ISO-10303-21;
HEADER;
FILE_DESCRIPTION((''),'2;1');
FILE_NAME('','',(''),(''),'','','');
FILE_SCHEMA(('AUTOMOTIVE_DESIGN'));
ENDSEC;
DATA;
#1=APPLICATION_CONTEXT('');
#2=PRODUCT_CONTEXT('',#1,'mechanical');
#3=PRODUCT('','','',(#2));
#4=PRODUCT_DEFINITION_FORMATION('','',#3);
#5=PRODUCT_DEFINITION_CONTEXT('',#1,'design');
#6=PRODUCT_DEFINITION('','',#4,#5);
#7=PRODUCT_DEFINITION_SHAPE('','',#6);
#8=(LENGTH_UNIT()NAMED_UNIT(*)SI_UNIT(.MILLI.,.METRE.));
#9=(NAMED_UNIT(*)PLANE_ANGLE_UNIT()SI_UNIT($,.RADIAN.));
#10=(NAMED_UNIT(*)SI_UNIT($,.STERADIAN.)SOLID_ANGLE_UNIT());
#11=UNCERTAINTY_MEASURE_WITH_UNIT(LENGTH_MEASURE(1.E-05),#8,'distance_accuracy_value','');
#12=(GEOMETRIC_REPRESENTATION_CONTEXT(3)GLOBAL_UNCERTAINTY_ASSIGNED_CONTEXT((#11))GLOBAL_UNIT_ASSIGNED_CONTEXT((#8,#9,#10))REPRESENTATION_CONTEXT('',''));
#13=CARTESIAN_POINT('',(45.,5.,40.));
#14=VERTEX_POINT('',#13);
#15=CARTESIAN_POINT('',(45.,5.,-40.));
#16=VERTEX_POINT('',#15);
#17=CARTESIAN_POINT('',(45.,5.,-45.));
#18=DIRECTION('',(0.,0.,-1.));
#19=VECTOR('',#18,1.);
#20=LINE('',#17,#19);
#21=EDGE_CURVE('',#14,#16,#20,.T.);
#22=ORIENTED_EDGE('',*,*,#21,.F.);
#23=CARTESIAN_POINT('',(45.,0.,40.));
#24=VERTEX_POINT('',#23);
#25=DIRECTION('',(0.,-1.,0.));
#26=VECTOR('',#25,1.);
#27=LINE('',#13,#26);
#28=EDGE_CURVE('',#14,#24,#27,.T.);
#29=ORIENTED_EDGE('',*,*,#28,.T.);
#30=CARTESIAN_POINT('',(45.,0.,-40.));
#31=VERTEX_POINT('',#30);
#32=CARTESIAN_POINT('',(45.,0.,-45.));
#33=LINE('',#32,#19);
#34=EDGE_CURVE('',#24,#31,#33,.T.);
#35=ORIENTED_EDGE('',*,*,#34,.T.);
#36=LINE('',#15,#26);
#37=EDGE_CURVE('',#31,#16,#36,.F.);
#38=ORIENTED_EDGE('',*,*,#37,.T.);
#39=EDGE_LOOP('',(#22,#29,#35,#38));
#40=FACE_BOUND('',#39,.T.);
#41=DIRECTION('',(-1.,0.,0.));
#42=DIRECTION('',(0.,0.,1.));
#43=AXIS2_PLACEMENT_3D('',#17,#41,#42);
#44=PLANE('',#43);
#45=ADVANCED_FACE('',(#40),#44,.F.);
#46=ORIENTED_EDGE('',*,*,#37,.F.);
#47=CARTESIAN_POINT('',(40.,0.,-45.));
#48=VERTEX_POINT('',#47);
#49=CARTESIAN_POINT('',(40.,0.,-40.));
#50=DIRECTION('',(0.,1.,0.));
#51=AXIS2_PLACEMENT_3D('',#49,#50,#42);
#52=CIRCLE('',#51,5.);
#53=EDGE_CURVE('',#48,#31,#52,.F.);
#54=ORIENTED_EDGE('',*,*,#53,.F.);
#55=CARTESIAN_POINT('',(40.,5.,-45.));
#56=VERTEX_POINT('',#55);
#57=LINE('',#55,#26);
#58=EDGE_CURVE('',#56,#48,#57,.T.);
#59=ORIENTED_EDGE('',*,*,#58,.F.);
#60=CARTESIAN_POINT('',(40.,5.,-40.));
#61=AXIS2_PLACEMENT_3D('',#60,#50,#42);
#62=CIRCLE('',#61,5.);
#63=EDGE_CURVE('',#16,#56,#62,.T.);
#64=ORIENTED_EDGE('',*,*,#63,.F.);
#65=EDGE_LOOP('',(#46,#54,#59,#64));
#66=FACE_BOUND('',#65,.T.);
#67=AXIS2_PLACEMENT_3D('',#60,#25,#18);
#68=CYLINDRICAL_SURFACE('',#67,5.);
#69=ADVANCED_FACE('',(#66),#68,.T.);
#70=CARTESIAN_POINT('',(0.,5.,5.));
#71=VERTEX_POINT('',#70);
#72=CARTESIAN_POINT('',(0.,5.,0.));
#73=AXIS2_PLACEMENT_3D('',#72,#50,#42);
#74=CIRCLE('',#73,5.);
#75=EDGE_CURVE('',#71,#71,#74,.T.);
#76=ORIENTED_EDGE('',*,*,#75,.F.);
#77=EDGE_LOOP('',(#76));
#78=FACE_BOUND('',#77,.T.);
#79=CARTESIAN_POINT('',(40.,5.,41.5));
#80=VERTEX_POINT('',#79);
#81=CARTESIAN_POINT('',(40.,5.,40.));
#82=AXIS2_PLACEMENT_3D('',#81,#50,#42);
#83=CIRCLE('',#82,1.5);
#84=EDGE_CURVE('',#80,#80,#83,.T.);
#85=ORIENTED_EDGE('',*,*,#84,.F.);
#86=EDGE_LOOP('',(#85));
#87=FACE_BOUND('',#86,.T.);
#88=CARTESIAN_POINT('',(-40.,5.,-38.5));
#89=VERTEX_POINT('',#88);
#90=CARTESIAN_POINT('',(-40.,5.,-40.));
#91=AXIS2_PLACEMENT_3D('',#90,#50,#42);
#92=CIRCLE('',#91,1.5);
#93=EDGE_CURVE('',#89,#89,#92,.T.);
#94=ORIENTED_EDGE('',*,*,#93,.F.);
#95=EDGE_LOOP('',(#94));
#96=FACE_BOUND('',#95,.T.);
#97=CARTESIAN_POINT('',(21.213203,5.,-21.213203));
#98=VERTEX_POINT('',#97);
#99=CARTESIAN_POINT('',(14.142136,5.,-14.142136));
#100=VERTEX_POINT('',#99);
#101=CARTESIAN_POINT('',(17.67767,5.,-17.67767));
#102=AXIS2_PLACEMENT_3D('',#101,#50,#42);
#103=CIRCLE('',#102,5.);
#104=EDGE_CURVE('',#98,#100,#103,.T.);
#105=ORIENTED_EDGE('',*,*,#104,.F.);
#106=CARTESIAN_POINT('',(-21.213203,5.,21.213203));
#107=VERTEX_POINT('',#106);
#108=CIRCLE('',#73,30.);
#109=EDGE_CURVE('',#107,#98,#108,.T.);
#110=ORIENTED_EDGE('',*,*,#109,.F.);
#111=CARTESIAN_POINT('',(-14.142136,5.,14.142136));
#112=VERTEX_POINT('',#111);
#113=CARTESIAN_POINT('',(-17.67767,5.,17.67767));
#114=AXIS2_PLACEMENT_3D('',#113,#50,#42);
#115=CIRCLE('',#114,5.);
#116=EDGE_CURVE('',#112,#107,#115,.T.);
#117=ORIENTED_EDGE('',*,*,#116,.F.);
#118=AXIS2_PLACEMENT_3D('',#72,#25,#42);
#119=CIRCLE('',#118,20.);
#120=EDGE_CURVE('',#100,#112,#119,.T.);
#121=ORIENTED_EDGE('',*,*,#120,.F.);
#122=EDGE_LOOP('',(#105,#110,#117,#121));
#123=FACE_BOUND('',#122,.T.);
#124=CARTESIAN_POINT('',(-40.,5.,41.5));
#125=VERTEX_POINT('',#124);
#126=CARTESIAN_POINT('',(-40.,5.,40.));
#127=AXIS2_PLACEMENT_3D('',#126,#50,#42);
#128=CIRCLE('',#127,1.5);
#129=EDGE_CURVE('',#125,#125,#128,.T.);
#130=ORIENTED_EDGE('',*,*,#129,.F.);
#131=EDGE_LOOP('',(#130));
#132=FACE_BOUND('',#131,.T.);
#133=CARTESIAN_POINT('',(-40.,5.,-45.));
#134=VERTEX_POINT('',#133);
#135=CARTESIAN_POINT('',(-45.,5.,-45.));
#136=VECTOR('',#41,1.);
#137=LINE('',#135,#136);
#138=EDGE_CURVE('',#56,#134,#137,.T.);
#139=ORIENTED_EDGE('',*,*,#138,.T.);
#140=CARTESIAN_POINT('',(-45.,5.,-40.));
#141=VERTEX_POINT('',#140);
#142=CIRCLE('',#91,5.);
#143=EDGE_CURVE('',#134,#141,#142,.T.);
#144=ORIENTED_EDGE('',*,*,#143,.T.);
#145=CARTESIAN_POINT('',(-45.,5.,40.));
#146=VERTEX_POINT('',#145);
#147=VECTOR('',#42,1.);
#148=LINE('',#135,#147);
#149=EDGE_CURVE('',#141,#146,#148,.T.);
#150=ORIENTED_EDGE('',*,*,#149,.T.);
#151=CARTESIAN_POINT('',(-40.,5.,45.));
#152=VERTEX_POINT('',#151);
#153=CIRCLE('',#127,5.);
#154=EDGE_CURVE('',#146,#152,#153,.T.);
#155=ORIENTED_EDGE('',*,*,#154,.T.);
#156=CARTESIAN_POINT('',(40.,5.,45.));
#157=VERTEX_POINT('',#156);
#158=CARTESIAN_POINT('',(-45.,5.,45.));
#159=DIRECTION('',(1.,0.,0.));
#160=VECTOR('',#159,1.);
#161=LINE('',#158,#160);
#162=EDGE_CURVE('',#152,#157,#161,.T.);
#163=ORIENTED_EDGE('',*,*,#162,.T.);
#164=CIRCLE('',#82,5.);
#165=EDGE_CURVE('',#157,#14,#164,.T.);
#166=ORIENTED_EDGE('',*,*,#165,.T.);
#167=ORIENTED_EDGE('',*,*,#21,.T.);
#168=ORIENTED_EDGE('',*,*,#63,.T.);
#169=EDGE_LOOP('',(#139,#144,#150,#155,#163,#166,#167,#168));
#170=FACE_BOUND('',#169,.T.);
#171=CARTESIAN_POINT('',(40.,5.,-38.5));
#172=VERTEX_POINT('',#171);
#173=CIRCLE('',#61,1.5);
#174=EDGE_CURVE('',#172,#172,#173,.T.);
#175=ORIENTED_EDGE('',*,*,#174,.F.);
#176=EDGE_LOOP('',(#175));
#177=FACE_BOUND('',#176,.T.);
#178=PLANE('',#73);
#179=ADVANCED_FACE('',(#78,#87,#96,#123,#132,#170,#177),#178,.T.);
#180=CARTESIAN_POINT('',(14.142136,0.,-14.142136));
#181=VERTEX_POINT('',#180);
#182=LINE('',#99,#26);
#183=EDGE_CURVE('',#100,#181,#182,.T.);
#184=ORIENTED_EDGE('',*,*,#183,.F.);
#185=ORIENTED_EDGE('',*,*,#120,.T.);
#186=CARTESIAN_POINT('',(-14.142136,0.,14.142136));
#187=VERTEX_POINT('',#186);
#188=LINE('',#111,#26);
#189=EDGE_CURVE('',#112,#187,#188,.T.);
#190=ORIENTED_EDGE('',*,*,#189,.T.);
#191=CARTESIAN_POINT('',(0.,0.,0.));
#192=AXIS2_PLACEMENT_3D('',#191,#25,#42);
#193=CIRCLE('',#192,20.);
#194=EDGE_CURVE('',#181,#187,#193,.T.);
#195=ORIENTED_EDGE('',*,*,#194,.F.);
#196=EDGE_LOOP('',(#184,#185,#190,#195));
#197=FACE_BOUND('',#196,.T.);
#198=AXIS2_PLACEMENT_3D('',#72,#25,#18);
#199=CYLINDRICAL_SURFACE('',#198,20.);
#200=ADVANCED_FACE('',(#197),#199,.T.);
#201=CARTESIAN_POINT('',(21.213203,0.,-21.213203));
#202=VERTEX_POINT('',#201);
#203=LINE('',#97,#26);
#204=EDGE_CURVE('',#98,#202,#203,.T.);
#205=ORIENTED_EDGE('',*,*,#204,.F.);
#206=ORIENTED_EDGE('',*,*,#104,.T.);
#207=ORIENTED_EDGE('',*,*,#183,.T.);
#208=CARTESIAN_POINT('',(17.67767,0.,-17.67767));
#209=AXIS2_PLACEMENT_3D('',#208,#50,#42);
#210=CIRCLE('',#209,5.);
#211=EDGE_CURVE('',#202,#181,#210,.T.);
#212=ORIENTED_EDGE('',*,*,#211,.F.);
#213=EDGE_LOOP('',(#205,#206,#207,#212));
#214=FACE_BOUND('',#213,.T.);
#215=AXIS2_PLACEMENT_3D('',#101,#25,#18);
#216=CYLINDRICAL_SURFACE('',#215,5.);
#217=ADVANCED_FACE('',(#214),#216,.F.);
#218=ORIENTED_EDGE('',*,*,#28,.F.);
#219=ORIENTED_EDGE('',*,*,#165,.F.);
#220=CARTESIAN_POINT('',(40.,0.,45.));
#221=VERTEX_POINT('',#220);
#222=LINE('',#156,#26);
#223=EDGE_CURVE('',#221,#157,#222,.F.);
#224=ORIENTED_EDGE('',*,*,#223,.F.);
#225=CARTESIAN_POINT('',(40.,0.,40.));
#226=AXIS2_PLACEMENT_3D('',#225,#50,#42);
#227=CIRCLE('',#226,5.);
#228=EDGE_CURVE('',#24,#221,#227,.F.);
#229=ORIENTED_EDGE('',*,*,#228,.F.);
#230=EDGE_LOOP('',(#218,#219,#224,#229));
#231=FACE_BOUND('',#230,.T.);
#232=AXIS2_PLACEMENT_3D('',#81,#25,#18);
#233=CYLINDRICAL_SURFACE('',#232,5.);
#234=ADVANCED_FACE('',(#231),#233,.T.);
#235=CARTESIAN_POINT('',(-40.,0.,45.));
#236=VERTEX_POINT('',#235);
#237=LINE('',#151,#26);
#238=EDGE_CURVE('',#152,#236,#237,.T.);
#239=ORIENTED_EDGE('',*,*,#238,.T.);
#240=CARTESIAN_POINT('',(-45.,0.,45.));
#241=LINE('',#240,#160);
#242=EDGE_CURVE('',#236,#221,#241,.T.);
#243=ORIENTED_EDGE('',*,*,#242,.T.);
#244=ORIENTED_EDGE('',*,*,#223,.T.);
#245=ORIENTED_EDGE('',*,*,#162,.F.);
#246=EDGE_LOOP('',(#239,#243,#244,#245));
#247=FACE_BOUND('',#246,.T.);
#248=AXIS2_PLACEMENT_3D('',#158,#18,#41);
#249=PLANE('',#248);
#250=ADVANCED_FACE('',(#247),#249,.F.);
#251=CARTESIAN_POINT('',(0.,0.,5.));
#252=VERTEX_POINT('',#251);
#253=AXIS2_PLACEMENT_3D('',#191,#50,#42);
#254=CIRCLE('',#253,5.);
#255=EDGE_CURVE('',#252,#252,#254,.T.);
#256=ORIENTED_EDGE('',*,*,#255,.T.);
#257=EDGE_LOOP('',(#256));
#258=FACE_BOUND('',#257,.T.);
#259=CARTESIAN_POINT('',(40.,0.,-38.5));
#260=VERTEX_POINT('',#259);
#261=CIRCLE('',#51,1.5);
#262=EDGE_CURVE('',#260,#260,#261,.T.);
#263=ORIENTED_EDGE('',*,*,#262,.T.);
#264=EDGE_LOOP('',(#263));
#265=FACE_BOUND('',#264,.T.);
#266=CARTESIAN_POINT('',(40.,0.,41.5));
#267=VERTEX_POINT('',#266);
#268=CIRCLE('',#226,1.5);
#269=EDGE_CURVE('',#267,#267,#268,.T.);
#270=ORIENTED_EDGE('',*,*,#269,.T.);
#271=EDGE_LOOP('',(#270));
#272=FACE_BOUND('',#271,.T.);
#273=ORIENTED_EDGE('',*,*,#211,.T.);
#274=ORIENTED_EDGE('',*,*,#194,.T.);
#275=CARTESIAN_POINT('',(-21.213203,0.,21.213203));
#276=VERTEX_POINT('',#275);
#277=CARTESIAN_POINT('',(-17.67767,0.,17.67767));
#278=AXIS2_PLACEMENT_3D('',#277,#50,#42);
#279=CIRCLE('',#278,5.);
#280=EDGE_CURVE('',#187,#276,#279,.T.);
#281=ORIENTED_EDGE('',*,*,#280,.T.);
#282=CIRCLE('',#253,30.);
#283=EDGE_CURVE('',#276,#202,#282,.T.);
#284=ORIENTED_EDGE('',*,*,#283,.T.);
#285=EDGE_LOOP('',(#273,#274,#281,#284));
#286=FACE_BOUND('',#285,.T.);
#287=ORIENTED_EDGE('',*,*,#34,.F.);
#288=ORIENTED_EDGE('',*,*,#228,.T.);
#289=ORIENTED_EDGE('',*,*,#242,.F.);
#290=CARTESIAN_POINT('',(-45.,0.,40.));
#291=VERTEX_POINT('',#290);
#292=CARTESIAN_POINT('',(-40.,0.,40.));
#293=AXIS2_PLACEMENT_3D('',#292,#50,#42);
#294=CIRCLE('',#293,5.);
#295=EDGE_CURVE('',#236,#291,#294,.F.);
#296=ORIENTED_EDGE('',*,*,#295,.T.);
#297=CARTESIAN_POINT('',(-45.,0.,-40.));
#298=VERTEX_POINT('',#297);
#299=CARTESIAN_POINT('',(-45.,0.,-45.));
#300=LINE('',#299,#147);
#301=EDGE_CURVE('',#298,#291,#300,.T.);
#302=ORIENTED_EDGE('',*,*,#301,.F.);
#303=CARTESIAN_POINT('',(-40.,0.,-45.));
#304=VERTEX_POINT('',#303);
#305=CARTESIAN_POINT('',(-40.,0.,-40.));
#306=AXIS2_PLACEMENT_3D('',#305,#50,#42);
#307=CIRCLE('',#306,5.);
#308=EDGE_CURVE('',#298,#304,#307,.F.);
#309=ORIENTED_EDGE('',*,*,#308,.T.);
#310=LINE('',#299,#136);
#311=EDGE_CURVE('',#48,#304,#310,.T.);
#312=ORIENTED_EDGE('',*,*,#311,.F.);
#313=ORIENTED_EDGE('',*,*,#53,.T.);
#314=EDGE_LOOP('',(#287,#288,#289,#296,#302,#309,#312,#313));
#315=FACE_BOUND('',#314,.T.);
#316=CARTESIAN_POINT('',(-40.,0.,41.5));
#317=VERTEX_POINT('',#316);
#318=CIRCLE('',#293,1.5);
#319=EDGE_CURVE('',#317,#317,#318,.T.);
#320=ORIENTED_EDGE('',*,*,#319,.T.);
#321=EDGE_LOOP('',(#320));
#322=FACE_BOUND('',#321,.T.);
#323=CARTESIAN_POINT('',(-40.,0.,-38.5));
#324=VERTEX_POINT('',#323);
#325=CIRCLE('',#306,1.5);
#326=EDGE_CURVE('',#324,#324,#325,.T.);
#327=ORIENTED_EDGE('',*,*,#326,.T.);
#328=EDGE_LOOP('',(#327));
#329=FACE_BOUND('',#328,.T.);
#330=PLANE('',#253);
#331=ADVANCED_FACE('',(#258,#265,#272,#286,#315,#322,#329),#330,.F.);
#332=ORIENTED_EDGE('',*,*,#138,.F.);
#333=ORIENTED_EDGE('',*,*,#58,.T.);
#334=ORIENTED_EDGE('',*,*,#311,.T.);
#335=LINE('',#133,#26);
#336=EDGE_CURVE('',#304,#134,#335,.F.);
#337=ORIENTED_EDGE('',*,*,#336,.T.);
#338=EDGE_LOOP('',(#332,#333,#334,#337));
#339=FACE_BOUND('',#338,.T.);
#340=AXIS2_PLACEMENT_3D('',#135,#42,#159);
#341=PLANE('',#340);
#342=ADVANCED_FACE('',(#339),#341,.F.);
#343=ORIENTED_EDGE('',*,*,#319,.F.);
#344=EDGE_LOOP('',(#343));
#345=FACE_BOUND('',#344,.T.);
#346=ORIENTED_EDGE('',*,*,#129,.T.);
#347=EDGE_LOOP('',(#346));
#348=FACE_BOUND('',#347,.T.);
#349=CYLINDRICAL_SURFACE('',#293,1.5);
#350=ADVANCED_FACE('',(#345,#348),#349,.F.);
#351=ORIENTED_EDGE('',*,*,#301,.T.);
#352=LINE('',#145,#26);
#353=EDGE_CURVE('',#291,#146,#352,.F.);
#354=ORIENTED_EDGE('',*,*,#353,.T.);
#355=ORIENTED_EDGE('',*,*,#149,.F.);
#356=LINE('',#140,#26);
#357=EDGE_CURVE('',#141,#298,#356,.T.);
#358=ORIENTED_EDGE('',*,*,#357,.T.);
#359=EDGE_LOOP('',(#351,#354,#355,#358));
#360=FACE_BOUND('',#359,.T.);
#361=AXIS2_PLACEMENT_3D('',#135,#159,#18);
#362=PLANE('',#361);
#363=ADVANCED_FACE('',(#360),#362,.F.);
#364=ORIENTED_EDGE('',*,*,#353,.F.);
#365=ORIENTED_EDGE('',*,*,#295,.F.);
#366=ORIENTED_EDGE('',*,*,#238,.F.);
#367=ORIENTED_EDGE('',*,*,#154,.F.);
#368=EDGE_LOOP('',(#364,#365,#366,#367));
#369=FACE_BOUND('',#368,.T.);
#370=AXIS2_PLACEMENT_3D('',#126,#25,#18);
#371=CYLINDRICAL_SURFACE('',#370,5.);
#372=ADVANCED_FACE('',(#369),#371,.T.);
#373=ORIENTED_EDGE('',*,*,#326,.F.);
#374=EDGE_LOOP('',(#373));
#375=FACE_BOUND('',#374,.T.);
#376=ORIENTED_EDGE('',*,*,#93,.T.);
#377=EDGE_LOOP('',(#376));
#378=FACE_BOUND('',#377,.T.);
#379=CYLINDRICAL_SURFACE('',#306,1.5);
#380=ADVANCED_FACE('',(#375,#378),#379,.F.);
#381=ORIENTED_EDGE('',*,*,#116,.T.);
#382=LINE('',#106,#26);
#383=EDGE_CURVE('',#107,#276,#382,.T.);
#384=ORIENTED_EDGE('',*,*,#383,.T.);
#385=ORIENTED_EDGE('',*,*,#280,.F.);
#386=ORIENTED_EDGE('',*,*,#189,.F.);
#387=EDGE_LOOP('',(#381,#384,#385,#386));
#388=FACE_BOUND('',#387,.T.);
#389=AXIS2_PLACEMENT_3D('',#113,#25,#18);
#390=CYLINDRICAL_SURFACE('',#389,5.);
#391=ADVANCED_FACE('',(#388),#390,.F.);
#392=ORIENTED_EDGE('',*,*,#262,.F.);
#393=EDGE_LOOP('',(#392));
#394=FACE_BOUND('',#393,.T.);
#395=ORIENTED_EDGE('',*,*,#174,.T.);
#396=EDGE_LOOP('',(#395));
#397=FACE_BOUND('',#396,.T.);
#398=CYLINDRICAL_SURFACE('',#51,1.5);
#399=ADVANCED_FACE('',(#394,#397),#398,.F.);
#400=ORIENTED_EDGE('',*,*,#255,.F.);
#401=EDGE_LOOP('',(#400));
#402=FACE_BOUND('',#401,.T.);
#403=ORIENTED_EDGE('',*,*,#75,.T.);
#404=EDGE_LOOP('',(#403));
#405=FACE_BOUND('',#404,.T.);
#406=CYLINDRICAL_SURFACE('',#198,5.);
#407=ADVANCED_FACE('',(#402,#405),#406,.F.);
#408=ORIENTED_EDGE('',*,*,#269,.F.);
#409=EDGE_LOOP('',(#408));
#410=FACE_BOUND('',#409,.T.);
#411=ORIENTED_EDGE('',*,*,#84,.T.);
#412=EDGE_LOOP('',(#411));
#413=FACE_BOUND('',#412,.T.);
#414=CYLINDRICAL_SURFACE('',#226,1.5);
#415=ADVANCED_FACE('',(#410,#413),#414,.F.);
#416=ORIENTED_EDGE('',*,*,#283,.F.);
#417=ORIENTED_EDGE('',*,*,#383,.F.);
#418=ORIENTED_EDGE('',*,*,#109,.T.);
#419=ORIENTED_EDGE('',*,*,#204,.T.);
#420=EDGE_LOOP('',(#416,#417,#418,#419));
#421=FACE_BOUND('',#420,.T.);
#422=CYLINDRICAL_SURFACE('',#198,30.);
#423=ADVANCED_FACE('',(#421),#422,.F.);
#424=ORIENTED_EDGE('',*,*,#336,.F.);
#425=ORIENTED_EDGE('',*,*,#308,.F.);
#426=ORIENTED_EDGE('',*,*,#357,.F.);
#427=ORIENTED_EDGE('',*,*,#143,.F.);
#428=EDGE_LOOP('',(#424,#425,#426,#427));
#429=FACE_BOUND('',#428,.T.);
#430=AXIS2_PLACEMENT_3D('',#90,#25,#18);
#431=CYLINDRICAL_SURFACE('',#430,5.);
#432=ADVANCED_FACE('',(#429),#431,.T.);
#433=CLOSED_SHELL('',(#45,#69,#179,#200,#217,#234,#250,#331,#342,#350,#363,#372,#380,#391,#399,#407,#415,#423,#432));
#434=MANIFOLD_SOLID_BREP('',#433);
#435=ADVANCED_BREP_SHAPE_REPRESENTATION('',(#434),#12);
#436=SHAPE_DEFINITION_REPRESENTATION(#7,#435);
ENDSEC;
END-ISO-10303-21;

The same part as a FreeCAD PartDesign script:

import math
import FreeCAD as App
import Part
import Sketcher
from FreeCAD import Vector


def edges_at(feature, points):
    """Names of the edges that pass closest to the given points."""
    edges = feature.Shape.Edges
    near = lambda p: min(range(len(edges)), key=lambda i: edges[i].distToShape(Part.Vertex(*p))[0])
    return sorted({f"Edge{near(p) + 1}" for p in points})

doc = App.newDocument("Part")
params = doc.addObject("Spreadsheet::Sheet", "Params")
for row, (alias, value) in enumerate([
    ("sketch1_diameter", "10 mm"),
    ("sketch1_radius", "30 mm"),
    ("sketch1_width", "90 mm"),
    ("pad1_length", "5 mm"),
    ("sketch2_diameter", "3 mm"),
    ("fillet_radius", "5 mm"),
], start=1):
    params.set(f"A{row}", alias)
    params.set(f"B{row}", "=" + value)
    params.setAlias(f"B{row}", alias)

body = doc.addObject("PartDesign::Body", "Body")

# Sketch on XZ plane
sketch1 = body.newObject("Sketcher::SketchObject", "Sketch")
sketch1.AttachmentSupport = (doc.getObject("XZ_Plane"), [""])
sketch1.MapMode = "FlatFace"
sketch1.addGeometry([
    Part.LineSegment(Vector(-45, -45, 0), Vector(-45, 45, 0)),  # 0
    Part.LineSegment(Vector(-45, 45, 0), Vector(45, 45, 0)),  # 1
    Part.LineSegment(Vector(45, 45, 0), Vector(45, -45, 0)),  # 2
    Part.LineSegment(Vector(45, -45, 0), Vector(-45, -45, 0)),  # 3
    Part.ArcOfCircle(Part.Circle(Vector(0, 0, 0), Vector(0, 0, 1), 30), math.radians(-45), math.radians(135)),  # 4
    Part.ArcOfCircle(Part.Circle(Vector(-17.67767, 17.67767, 0), Vector(0, 0, 1), 5), math.radians(135), math.radians(315)),  # 5
    Part.ArcOfCircle(Part.Circle(Vector(0, 0, 0), Vector(0, 0, 1), 20), math.radians(-45), math.radians(135)),  # 6
    Part.ArcOfCircle(Part.Circle(Vector(17.67767, -17.67767, 0), Vector(0, 0, 1), 5), math.radians(135), math.radians(315)),  # 7
    Part.Circle(Vector(0, 0, 0), Vector(0, 0, 1), 5),  # 8
], False)
sketch1.addConstraint([
    Sketcher.Constraint("Coincident", 0, 2, 1, 1),
    Sketcher.Constraint("Coincident", 1, 2, 2, 1),
    Sketcher.Constraint("Coincident", 2, 2, 3, 1),
    Sketcher.Constraint("Coincident", 3, 2, 0, 1),
    Sketcher.Constraint("Tangent", 4, 2, 5, 1),
    Sketcher.Constraint("Tangent", 5, 2, 6, 2),
    Sketcher.Constraint("Tangent", 6, 1, 7, 1),
    Sketcher.Constraint("Tangent", 7, 2, 4, 1),
    Sketcher.Constraint("Vertical", 0),
    Sketcher.Constraint("Horizontal", 1),
    Sketcher.Constraint("Vertical", 2),
    Sketcher.Constraint("Horizontal", 3),
    Sketcher.Constraint("Coincident", 4, 3, -1, 1),
    Sketcher.Constraint("Coincident", 6, 3, -1, 1),
    Sketcher.Constraint("Coincident", 8, 3, -1, 1),
    Sketcher.Constraint("Equal", 7, 8),
    Sketcher.Constraint("Symmetric", 0, 2, 2, 2, -1, 1),
    Sketcher.Constraint("Equal", 3, 0),
    Sketcher.Constraint("Diameter", 8, 10.0),
    Sketcher.Constraint("Radius", 4, 30.0),
    Sketcher.Constraint("DistanceX", 1, 1, 1, 2, 90.0),
    Sketcher.Constraint("DistanceX", 5, 3, -1, 1, 17.67767),
    Sketcher.Constraint("DistanceX", -1, 1, 7, 3, 17.67767),
])
sketch1.setExpression("Constraints[18]", "Params.sketch1_diameter")
sketch1.setExpression("Constraints[19]", "Params.sketch1_radius")
sketch1.setExpression("Constraints[20]", "Params.sketch1_width")
pad1 = body.newObject("PartDesign::Pad", "Pad")
pad1.Profile = sketch1
pad1.setExpression("Length", "Params.pad1_length")
pad1.Reversed = True

# Sketch on XZ plane
sketch2 = body.newObject("Sketcher::SketchObject", "Sketch001")
sketch2.AttachmentSupport = (doc.getObject("XZ_Plane"), [""])
sketch2.MapMode = "FlatFace"
sketch2.AttachmentOffset = App.Placement(Vector(0, 0, -5), App.Rotation())
sketch2.addGeometry([
    Part.Circle(Vector(-40, -40, 0), Vector(0, 0, 1), 1.5),
    Part.Circle(Vector(40, -40, 0), Vector(0, 0, 1), 1.5),
    Part.Circle(Vector(40, 40, 0), Vector(0, 0, 1), 1.5),
    Part.Circle(Vector(-40, 40, 0), Vector(0, 0, 1), 1.5),
], False)
sketch2.addConstraint([
    Sketcher.Constraint("Equal", 0, 1),
    Sketcher.Constraint("Equal", 1, 2),
    Sketcher.Constraint("Equal", 2, 3),
    Sketcher.Constraint("Symmetric", 0, 3, 2, 3, -1, 1),
    Sketcher.Constraint("Symmetric", 1, 3, 3, 3, -1, 1),
    Sketcher.Constraint("Symmetric", 0, 3, 1, 3, -2),
    Sketcher.Constraint("Diameter", 0, 3.0),
    Sketcher.Constraint("DistanceX", 0, 3, -1, 1, 40.0),
    Sketcher.Constraint("DistanceY", 0, 3, -1, 1, 40.0),
])
sketch2.setExpression("Constraints[6]", "Params.sketch2_diameter")
pocket1 = body.newObject("PartDesign::Pocket", "Pocket")
pocket1.Profile = sketch2
pocket1.Type = "ThroughAll"
pocket1.Reversed = True
doc.recompute()

fillet = body.newObject("PartDesign::Fillet", "Fillet")
fillet.Base = (pocket1, edges_at(pocket1, [
    (45, 2.5, 45),
    (-45, 2.5, 45),
    (-45, 2.5, -45),
    (45, 2.5, -45),
]))
fillet.setExpression("Radius", "Params.fillet_radius")

doc.recompute()
